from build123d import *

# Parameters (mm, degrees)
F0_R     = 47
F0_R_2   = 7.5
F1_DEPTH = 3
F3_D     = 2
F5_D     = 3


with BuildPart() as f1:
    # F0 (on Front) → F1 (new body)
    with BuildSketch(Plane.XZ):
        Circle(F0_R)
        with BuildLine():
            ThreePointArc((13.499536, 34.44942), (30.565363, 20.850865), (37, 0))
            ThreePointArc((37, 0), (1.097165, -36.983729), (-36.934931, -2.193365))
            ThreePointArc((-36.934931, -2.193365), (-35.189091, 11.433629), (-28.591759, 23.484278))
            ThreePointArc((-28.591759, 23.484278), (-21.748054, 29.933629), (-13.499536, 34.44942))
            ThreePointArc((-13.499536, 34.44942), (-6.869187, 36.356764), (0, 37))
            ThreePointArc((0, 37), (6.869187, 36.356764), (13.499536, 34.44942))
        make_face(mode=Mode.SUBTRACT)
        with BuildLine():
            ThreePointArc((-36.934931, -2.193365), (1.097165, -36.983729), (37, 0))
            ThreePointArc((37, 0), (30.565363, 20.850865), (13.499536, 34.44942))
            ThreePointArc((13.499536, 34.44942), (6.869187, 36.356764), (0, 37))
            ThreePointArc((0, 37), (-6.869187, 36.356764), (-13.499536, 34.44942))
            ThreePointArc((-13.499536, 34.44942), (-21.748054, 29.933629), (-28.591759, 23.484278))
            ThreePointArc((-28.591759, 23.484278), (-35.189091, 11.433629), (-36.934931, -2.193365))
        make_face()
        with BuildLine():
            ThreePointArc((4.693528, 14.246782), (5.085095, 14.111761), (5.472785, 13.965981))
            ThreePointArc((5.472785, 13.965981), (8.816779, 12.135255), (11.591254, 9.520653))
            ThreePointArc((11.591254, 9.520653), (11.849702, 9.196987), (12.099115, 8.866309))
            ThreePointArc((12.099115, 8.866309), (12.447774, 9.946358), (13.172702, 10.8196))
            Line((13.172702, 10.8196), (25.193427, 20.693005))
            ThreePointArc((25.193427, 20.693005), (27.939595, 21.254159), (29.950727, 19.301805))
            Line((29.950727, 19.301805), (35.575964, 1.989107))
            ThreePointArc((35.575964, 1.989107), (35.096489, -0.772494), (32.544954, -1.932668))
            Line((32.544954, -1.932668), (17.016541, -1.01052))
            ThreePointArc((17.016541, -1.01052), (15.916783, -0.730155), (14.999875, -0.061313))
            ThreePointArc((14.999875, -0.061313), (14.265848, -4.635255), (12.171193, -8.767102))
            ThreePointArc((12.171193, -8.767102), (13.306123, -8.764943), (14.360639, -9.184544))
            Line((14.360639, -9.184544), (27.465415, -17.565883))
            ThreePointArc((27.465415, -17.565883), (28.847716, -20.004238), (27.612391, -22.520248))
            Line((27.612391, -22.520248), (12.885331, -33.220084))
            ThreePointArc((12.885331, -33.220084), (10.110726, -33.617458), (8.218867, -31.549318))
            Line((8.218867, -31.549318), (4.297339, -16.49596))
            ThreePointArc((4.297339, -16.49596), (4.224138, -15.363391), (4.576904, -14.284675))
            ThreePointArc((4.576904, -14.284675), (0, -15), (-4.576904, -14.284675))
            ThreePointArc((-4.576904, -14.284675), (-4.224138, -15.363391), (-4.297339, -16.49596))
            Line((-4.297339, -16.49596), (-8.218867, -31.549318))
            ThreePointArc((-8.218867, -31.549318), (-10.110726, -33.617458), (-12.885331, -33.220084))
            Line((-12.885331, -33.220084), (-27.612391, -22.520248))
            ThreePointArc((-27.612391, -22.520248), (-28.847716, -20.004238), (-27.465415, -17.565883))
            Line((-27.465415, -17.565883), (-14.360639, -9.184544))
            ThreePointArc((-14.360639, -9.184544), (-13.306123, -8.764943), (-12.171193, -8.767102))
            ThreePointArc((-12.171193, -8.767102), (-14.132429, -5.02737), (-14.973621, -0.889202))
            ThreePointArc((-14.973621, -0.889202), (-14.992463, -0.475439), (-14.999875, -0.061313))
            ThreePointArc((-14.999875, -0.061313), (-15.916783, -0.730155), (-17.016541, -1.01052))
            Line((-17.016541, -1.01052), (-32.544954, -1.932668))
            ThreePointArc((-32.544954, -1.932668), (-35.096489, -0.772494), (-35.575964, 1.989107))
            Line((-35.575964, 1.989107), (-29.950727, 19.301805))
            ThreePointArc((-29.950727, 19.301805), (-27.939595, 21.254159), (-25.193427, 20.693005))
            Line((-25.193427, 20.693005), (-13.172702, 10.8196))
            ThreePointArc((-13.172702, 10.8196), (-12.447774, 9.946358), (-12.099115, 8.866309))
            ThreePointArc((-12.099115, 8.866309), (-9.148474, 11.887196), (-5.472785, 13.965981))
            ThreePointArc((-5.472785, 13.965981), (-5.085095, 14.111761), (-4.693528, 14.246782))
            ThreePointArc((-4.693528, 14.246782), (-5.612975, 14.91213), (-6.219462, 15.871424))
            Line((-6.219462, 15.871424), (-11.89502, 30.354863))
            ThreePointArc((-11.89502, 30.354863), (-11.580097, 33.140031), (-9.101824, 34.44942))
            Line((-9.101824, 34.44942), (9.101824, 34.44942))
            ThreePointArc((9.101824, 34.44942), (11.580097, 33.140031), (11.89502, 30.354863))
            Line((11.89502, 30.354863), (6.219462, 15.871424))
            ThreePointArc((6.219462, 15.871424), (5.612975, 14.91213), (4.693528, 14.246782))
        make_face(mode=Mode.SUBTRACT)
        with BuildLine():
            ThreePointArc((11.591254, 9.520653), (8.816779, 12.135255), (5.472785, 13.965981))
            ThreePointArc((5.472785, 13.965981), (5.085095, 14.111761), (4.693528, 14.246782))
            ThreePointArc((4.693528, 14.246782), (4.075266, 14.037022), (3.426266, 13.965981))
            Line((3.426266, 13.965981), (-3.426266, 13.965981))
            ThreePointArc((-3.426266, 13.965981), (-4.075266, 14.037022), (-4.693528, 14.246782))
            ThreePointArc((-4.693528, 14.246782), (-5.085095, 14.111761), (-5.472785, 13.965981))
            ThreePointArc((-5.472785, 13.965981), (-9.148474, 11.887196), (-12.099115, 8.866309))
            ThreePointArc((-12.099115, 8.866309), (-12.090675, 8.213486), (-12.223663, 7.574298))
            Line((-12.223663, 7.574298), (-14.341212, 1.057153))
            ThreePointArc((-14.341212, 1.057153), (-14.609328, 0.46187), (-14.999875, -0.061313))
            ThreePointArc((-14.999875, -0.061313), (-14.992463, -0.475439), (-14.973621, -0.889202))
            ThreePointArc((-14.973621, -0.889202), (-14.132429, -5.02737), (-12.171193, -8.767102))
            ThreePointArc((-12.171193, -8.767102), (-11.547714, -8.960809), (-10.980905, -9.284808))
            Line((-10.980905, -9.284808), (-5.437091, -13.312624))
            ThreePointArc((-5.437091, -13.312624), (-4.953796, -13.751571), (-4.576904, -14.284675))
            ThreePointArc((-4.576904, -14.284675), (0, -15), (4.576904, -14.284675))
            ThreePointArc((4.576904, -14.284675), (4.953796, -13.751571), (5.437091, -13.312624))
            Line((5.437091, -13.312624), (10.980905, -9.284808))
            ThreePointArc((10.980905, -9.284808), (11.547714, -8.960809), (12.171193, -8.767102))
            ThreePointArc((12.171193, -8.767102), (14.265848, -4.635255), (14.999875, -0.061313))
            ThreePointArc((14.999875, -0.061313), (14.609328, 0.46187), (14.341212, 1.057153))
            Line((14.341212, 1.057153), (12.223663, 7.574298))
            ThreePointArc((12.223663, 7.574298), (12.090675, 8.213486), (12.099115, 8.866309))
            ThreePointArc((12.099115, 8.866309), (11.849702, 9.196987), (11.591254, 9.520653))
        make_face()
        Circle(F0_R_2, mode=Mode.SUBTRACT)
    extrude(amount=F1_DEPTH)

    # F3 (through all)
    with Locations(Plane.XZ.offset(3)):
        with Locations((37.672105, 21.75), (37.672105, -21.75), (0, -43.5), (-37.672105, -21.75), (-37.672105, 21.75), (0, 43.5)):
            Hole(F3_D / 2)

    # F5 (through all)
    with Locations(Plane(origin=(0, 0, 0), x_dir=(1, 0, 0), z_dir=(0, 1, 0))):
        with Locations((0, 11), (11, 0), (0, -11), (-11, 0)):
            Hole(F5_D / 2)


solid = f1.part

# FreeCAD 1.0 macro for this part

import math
import FreeCAD as App
import Part
import Sketcher
Q = App.Units.Quantity

doc = App.newDocument("Part")
body = doc.addObject("PartDesign::Body", "Body")

# Sketch on XZ plane
sketch1 = body.newObject("Sketcher::SketchObject", "Sketch")
sketch1.AttachmentSupport = (doc.getObject("XZ_Plane"), [""])
sketch1.MapMode = "FlatFace"
sketch1.addGeometry(Part.Circle(App.Vector(0, 0, 0), App.Vector(0, 0, 1), 47), False)
sketch1.addGeometry(Part.ArcOfCircle(Part.Circle(App.Vector(-12.7, -11.7, 0), App.Vector(0, 0, 1), 3), math.radians(79), math.radians(123)), False)
sketch1.addGeometry(Part.ArcOfCircle(Part.Circle(App.Vector(-12.7, -11.7, 0), App.Vector(0, 0, 1), 3), math.radians(54), math.radians(79)), False)
sketch1.addGeometry(Part.LineSegment(App.Vector(-11, -9.3, 0), App.Vector(-5.4, -13.3, 0)), False)
sketch1.addGeometry(Part.ArcOfCircle(Part.Circle(App.Vector(-7.2, -15.7, 0), App.Vector(0, 0, 1), 3), math.radians(29), math.radians(54)), False)
sketch1.addGeometry(Part.ArcOfCircle(Part.Circle(App.Vector(-7.2, -15.7, 0), App.Vector(0, 0, 1), 3), math.radians(-15), math.radians(29)), False)
sketch1.addGeometry(Part.LineSegment(App.Vector(-4.3, -16.5, 0), App.Vector(-8.2, -31.5, 0)), False)
sketch1.addGeometry(Part.ArcOfCircle(Part.Circle(App.Vector(-11.1, -30.8, 0), App.Vector(0, 0, 1), 3), math.radians(-126), math.radians(-15)), False)
sketch1.addGeometry(Part.LineSegment(App.Vector(-12.9, -33.2, 0), App.Vector(-27.6, -22.5, 0)), False)
sketch1.addGeometry(Part.ArcOfCircle(Part.Circle(App.Vector(-25.8, -20.1, 0), App.Vector(0, 0, 1), 3), math.radians(123), math.radians(234)), False)
sketch1.addGeometry(Part.LineSegment(App.Vector(-27.5, -17.6, 0), App.Vector(-14.4, -9.2, 0)), False)
sketch1.addGeometry(Part.ArcOfCircle(Part.Circle(App.Vector(7.2, -15.7, 0), App.Vector(0, 0, 1), 3), math.radians(151), math.radians(195)), False)
sketch1.addGeometry(Part.ArcOfCircle(Part.Circle(App.Vector(7.2, -15.7, 0), App.Vector(0, 0, 1), 3), math.radians(126), math.radians(151)), False)
sketch1.addGeometry(Part.LineSegment(App.Vector(5.4, -13.3, 0), App.Vector(11, -9.3, 0)), False)
sketch1.addGeometry(Part.ArcOfCircle(Part.Circle(App.Vector(12.7, -11.7, 0), App.Vector(0, 0, 1), 3), math.radians(101), math.radians(126)), False)
sketch1.addGeometry(Part.ArcOfCircle(Part.Circle(App.Vector(12.7, -11.7, 0), App.Vector(0, 0, 1), 3), math.radians(57), math.radians(101)), False)
sketch1.addGeometry(Part.LineSegment(App.Vector(14.4, -9.2, 0), App.Vector(27.5, -17.6, 0)), False)
sketch1.addGeometry(Part.ArcOfCircle(Part.Circle(App.Vector(25.8, -20.1, 0), App.Vector(0, 0, 1), 3), math.radians(-54), math.radians(57)), False)
sketch1.addGeometry(Part.LineSegment(App.Vector(27.6, -22.5, 0), App.Vector(12.9, -33.2, 0)), False)
sketch1.addGeometry(Part.ArcOfCircle(Part.Circle(App.Vector(11.1, -30.8, 0), App.Vector(0, 0, 1), 3), math.radians(-165), math.radians(-54)), False)
sketch1.addGeometry(Part.LineSegment(App.Vector(8.2, -31.5, 0), App.Vector(4.3, -16.5, 0)), False)
sketch1.addGeometry(Part.Circle(App.Vector(0, 0, 0), App.Vector(0, 0, 1), 7.5), False)
sketch1.addGeometry(Part.ArcOfCircle(Part.Circle(App.Vector(-15.1, 8.5, 0), App.Vector(0, 0, 1), 3), math.radians(7), math.radians(51)), False)
sketch1.addGeometry(Part.ArcOfCircle(Part.Circle(App.Vector(-15.1, 8.5, 0), App.Vector(0, 0, 1), 3), math.radians(-18), math.radians(7)), False)
sketch1.addGeometry(Part.LineSegment(App.Vector(-12.2, 7.6, 0), App.Vector(-14.3, 1.1, 0)), False)
sketch1.addGeometry(Part.ArcOfCircle(Part.Circle(App.Vector(-17.2, 2, 0), App.Vector(0, 0, 1), 3), math.radians(-43), math.radians(-18)), False)
sketch1.addGeometry(Part.ArcOfCircle(Part.Circle(App.Vector(-17.2, 2, 0), App.Vector(0, 0, 1), 3), math.radians(-87), math.radians(-43)), False)
sketch1.addGeometry(Part.LineSegment(App.Vector(-17, -1, 0), App.Vector(-32.5, -1.9, 0)), False)
sketch1.addGeometry(Part.ArcOfCircle(Part.Circle(App.Vector(-32.7, 1.1, 0), App.Vector(0, 0, 1), 3), math.radians(162), math.radians(273)), False)
sketch1.addGeometry(Part.LineSegment(App.Vector(-35.6, 2, 0), App.Vector(-30, 19.3, 0)), False)
sketch1.addGeometry(Part.ArcOfCircle(Part.Circle(App.Vector(-27.1, 18.4, 0), App.Vector(0, 0, 1), 3), math.radians(51), math.radians(162)), False)
sketch1.addGeometry(Part.LineSegment(App.Vector(-25.2, 20.7, 0), App.Vector(-13.2, 10.8, 0)), False)
sketch1.addGeometry(Part.ArcOfCircle(Part.Circle(App.Vector(17.2, 2, 0), App.Vector(0, 0, 1), 3), math.radians(-137), math.radians(-93)), False)
sketch1.addGeometry(Part.ArcOfCircle(Part.Circle(App.Vector(17.2, 2, 0), App.Vector(0, 0, 1), 3), math.radians(-162), math.radians(-137)), False)
sketch1.addGeometry(Part.LineSegment(App.Vector(14.3, 1.1, 0), App.Vector(12.2, 7.6, 0)), False)
sketch1.addGeometry(Part.ArcOfCircle(Part.Circle(App.Vector(15.1, 8.5, 0), App.Vector(0, 0, 1), 3), math.radians(173), math.radians(198)), False)
sketch1.addGeometry(Part.ArcOfCircle(Part.Circle(App.Vector(15.1, 8.5, 0), App.Vector(0, 0, 1), 3), math.radians(129), math.radians(173)), False)
sketch1.addGeometry(Part.LineSegment(App.Vector(13.2, 10.8, 0), App.Vector(25.2, 20.7, 0)), False)
sketch1.addGeometry(Part.ArcOfCircle(Part.Circle(App.Vector(27.1, 18.4, 0), App.Vector(0, 0, 1), 3), math.radians(18), math.radians(129)), False)
sketch1.addGeometry(Part.LineSegment(App.Vector(30, 19.3, 0), App.Vector(35.6, 2, 0)), False)
sketch1.addGeometry(Part.ArcOfCircle(Part.Circle(App.Vector(32.7, 1.1, 0), App.Vector(0, 0, 1), 3), math.radians(-93), math.radians(18)), False)
sketch1.addGeometry(Part.LineSegment(App.Vector(32.5, -1.9, 0), App.Vector(17, -1, 0)), False)
sketch1.addGeometry(Part.ArcOfCircle(Part.Circle(App.Vector(3.4, 17, 0), App.Vector(0, 0, 1), 3), math.radians(-65), math.radians(-21)), False)
sketch1.addGeometry(Part.ArcOfCircle(Part.Circle(App.Vector(3.4, 17, 0), App.Vector(0, 0, 1), 3), math.radians(-90), math.radians(-65)), False)
sketch1.addGeometry(Part.LineSegment(App.Vector(3.4, 14, 0), App.Vector(-3.4, 14, 0)), False)
sketch1.addGeometry(Part.ArcOfCircle(Part.Circle(App.Vector(-3.4, 17, 0), App.Vector(0, 0, 1), 3), math.radians(-115), math.radians(-90)), False)
sketch1.addGeometry(Part.ArcOfCircle(Part.Circle(App.Vector(-3.4, 17, 0), App.Vector(0, 0, 1), 3), math.radians(-159), math.radians(-115)), False)
sketch1.addGeometry(Part.LineSegment(App.Vector(-6.2, 15.9, 0), App.Vector(-11.9, 30.4, 0)), False)
sketch1.addGeometry(Part.ArcOfCircle(Part.Circle(App.Vector(-9.1, 31.4, 0), App.Vector(0, 0, 1), 3), math.radians(90), math.radians(201)), False)
sketch1.addGeometry(Part.LineSegment(App.Vector(-9.1, 34.4, 0), App.Vector(9.1, 34.4, 0)), False)
sketch1.addGeometry(Part.ArcOfCircle(Part.Circle(App.Vector(9.1, 31.4, 0), App.Vector(0, 0, 1), 3), math.radians(-21), math.radians(90)), False)
sketch1.addGeometry(Part.LineSegment(App.Vector(11.9, 30.4, 0), App.Vector(6.2, 15.9, 0)), False)
sketch1.addConstraint(Sketcher.Constraint("Tangent", 1, 1, 2, 2))
sketch1.addConstraint(Sketcher.Constraint("Tangent", 2, 1, 3, 1))
sketch1.addConstraint(Sketcher.Constraint("Tangent", 3, 2, 4, 2))
sketch1.addConstraint(Sketcher.Constraint("Tangent", 4, 1, 5, 2))
sketch1.addConstraint(Sketcher.Constraint("Tangent", 5, 1, 6, 1))
sketch1.addConstraint(Sketcher.Constraint("Tangent", 6, 2, 7, 2))
sketch1.addConstraint(Sketcher.Constraint("Tangent", 7, 1, 8, 1))
sketch1.addConstraint(Sketcher.Constraint("Tangent", 8, 2, 9, 2))
sketch1.addConstraint(Sketcher.Constraint("Tangent", 9, 1, 10, 1))
sketch1.addConstraint(Sketcher.Constraint("Tangent", 10, 2, 1, 2))
sketch1.addConstraint(Sketcher.Constraint("Tangent", 11, 1, 12, 2))
sketch1.addConstraint(Sketcher.Constraint("Tangent", 12, 1, 13, 1))
sketch1.addConstraint(Sketcher.Constraint("Tangent", 13, 2, 14, 2))
sketch1.addConstraint(Sketcher.Constraint("Tangent", 14, 1, 15, 2))
sketch1.addConstraint(Sketcher.Constraint("Tangent", 15, 1, 16, 1))
sketch1.addConstraint(Sketcher.Constraint("Tangent", 16, 2, 17, 2))
sketch1.addConstraint(Sketcher.Constraint("Tangent", 17, 1, 18, 1))
sketch1.addConstraint(Sketcher.Constraint("Tangent", 18, 2, 19, 2))
sketch1.addConstraint(Sketcher.Constraint("Tangent", 19, 1, 20, 1))
sketch1.addConstraint(Sketcher.Constraint("Tangent", 20, 2, 11, 2))
sketch1.addConstraint(Sketcher.Constraint("Coincident", 22, 1, 23, 2))
sketch1.addConstraint(Sketcher.Constraint("Tangent", 23, 1, 24, 1))
sketch1.addConstraint(Sketcher.Constraint("Tangent", 24, 2, 25, 2))
sketch1.addConstraint(Sketcher.Constraint("Coincident", 25, 1, 26, 2))
sketch1.addConstraint(Sketcher.Constraint("Tangent", 26, 1, 27, 1))
sketch1.addConstraint(Sketcher.Constraint("Tangent", 27, 2, 28, 2))
sketch1.addConstraint(Sketcher.Constraint("Tangent", 28, 1, 29, 1))
sketch1.addConstraint(Sketcher.Constraint("Tangent", 29, 2, 30, 2))
sketch1.addConstraint(Sketcher.Constraint("Tangent", 30, 1, 31, 1))
sketch1.addConstraint(Sketcher.Constraint("Tangent", 31, 2, 22, 2))
sketch1.addConstraint(Sketcher.Constraint("Coincident", 32, 1, 33, 2))
sketch1.addConstraint(Sketcher.Constraint("Tangent", 33, 1, 34, 1))
sketch1.addConstraint(Sketcher.Constraint("Tangent", 34, 2, 35, 2))
sketch1.addConstraint(Sketcher.Constraint("Coincident", 35, 1, 36, 2))
sketch1.addConstraint(Sketcher.Constraint("Tangent", 36, 1, 37, 1))
sketch1.addConstraint(Sketcher.Constraint("Tangent", 37, 2, 38, 2))
sketch1.addConstraint(Sketcher.Constraint("Tangent", 38, 1, 39, 1))
sketch1.addConstraint(Sketcher.Constraint("Tangent", 39, 2, 40, 2))
sketch1.addConstraint(Sketcher.Constraint("Tangent", 40, 1, 41, 1))
sketch1.addConstraint(Sketcher.Constraint("Tangent", 41, 2, 32, 2))
sketch1.addConstraint(Sketcher.Constraint("Coincident", 42, 1, 43, 2))
sketch1.addConstraint(Sketcher.Constraint("Tangent", 43, 1, 44, 1))
sketch1.addConstraint(Sketcher.Constraint("Tangent", 44, 2, 45, 2))
sketch1.addConstraint(Sketcher.Constraint("Coincident", 45, 1, 46, 2))
sketch1.addConstraint(Sketcher.Constraint("Tangent", 46, 1, 47, 1))
sketch1.addConstraint(Sketcher.Constraint("Tangent", 47, 2, 48, 2))
sketch1.addConstraint(Sketcher.Constraint("Tangent", 48, 1, 49, 1))
sketch1.addConstraint(Sketcher.Constraint("Tangent", 49, 2, 50, 2))
sketch1.addConstraint(Sketcher.Constraint("Tangent", 50, 1, 51, 1))
sketch1.addConstraint(Sketcher.Constraint("Tangent", 51, 2, 42, 2))
sketch1.addConstraint(Sketcher.Constraint("Horizontal", 44))
sketch1.addConstraint(Sketcher.Constraint("Horizontal", 49))
sketch1.addConstraint(Sketcher.Constraint("Coincident", 0, 3, -1, 1))
sketch1.addConstraint(Sketcher.Constraint("Coincident", 21, 3, -1, 1))
sketch1.addConstraint(Sketcher.Constraint("Equal", 2, 7))
sketch1.addConstraint(Sketcher.Constraint("Equal", 7, 9))
sketch1.addConstraint(Sketcher.Constraint("Equal", 5, 11))
sketch1.addConstraint(Sketcher.Constraint("Equal", 4, 12))
sketch1.addConstraint(Sketcher.Constraint("Equal", 9, 14))
sketch1.addConstraint(Sketcher.Constraint("Equal", 1, 15))
sketch1.addConstraint(Sketcher.Constraint("Equal", 14, 17))
sketch1.addConstraint(Sketcher.Constraint("Equal", 17, 19))
sketch1.addConstraint(Sketcher.Constraint("Equal", 17, 22))
sketch1.addConstraint(Sketcher.Constraint("Equal", 23, 25))
sketch1.addConstraint(Sketcher.Constraint("Equal", 22, 28))
sketch1.addConstraint(Sketcher.Constraint("Equal", 28, 30))
sketch1.addConstraint(Sketcher.Constraint("Equal", 26, 32))
sketch1.addConstraint(Sketcher.Constraint("Equal", 25, 33))
sketch1.addConstraint(Sketcher.Constraint("Equal", 33, 35))
sketch1.addConstraint(Sketcher.Constraint("Equal", 30, 36))
sketch1.addConstraint(Sketcher.Constraint("Equal", 36, 38))
sketch1.addConstraint(Sketcher.Constraint("Equal", 38, 40))
sketch1.addConstraint(Sketcher.Constraint("Equal", 15, 42))
sketch1.addConstraint(Sketcher.Constraint("Equal", 43, 45))
sketch1.addConstraint(Sketcher.Constraint("Equal", 42, 46))
sketch1.addConstraint(Sketcher.Constraint("Equal", 40, 48))
sketch1.addConstraint(Sketcher.Constraint("Equal", 48, 50))
sketch1.addConstraint(Sketcher.Constraint("Symmetric", 5, 3, 11, 3, -2))
sketch1.addConstraint(Sketcher.Constraint("Symmetric", 1, 3, 14, 3, -2))
sketch1.addConstraint(Sketcher.Constraint("Symmetric", 9, 3, 17, 3, -2))
sketch1.addConstraint(Sketcher.Constraint("Symmetric", 7, 3, 19, 3, -2))
sketch1.addConstraint(Sketcher.Constraint("Symmetric", 26, 3, 32, 3, -2))
sketch1.addConstraint(Sketcher.Constraint("Symmetric", 23, 3, 35, 3, -2))
sketch1.addConstraint(Sketcher.Constraint("Symmetric", 30, 3, 38, 3, -2))
sketch1.addConstraint(Sketcher.Constraint("Symmetric", 28, 3, 40, 3, -2))
sketch1.addConstraint(Sketcher.Constraint("Symmetric", 42, 3, 46, 3, -2))
sketch1.addConstraint(Sketcher.Constraint("Symmetric", 1, 1, 14, 1, -2))
sketch1.addConstraint(Sketcher.Constraint("Parallel", 3, 8))
sketch1.addConstraint(Sketcher.Constraint("Parallel", 24, 29))
sketch1.addConstraint(Sketcher.Constraint("Parallel", 34, 39))
sketch1.addConstraint(Sketcher.Constraint("Horizontal", 22, 3, 36, 3))
sketch1.addConstraint(Sketcher.Constraint("Horizontal", 4, 1, 11, 1))
sketch1.addConstraint(Sketcher.Constraint("Horizontal", 25, 1, 32, 1))
sketch1.addConstraint(Sketcher.Constraint("Horizontal", 22, 1, 35, 1))
sketch1.addConstraint(Sketcher.Constraint("Horizontal", 42, 1, 45, 1))
sketch1.addConstraint(Sketcher.Constraint("Horizontal", 47, 2, 50, 1))
sketch1.addConstraint(Sketcher.Constraint("Vertical", 42, 3, 43, 3))
sketch1.addConstraint(Sketcher.Constraint("Equal", 6, 10))
sketch1.addConstraint(Sketcher.Constraint("Equal", 13, 24))
sketch1.addConstraint(Sketcher.Constraint("Equal", 20, 27))
sketch1.addConstraint(Sketcher.Constraint("Equal", 18, 29))
sketch1.addConstraint(Sketcher.Constraint("Equal", 27, 31))
sketch1.addConstraint(Sketcher.Constraint("Equal", 41, 47))
sketch1.addConstraint(Sketcher.Constraint("Diameter", 0, Q("94 mm")))
sketch1.addConstraint(Sketcher.Constraint("Diameter", 21, Q("15 mm")))
sketch1.addConstraint(Sketcher.Constraint("Radius", 2, Q("3 mm")))
sketch1.addConstraint(Sketcher.Constraint("Angle", 3, Q("-35.999996 deg")))
sketch1.addConstraint(Sketcher.Constraint("Angle", 24, Q("-108.000002 deg")))
sketch1.addConstraint(Sketcher.Constraint("Radius", 26, Q("2.999991 mm")))
sketch1.addConstraint(Sketcher.Constraint("Radius", 4, Q("3.000026 mm")))
sketch1.addConstraint(Sketcher.Constraint("Radius", 5, Q("2.999996 mm")))
sketch1.addConstraint(Sketcher.Constraint("Radius", 23, Q("2.999978 mm")))
sketch1.addConstraint(Sketcher.Constraint("Radius", 43, Q("2.999974 mm")))
sketch1.addConstraint(Sketcher.Constraint("DistanceX", 49, 1, 49, 2, Q("18.203648 mm")))
sketch1.addConstraint(Sketcher.Constraint("DistanceY", 1, 1, -1, 1, Q("8.767102 mm")))
sketch1.addConstraint(Sketcher.Constraint("DistanceY", -1, 1, 23, 1, Q("7.574298 mm")))
sketch1.addConstraint(Sketcher.Constraint("DistanceX", 31, 2, -1, 1, Q("13.172702 mm")))
sketch1.addConstraint(Sketcher.Constraint("DistanceY", -1, 1, 31, 2, Q("10.8196 mm")))
sketch1.addConstraint(Sketcher.Constraint("Distance", 3, Q("6.852531 mm")))
sketch1.addConstraint(Sketcher.Constraint("Distance", 6, Q("15.55577 mm")))
sketch1.addConstraint(Sketcher.Constraint("Distance", 29, Q("18.203648 mm")))
sketch1.addConstraint(Sketcher.Constraint("DistanceX", 44, 2, 44, 1, Q("6.852532 mm")))
sketch1.addConstraint(Sketcher.Constraint("DistanceX", 1, 3, -1, 1, Q("12.744262 mm")))
sketch1.addConstraint(Sketcher.Constraint("DistanceY", 2, 3, -1, 1, Q("11.711859 mm")))
sketch1.addConstraint(Sketcher.Constraint("DistanceX", 22, 3, -1, 1, Q("15.076832 mm")))
sketch1.addConstraint(Sketcher.Constraint("DistanceY", -1, 1, 48, 3, Q("31.449421 mm")))
sketch1.addConstraint(Sketcher.Constraint("DistanceY", -1, 1, 22, 1, Q("8.866309 mm")))
sketch1.addConstraint(Sketcher.Constraint("DistanceX", 45, 1, -1, 1, Q("4.693528 mm")))
sketch1.addConstraint(Sketcher.Constraint("DistanceX", 4, 1, -1, 1, Q("4.576904 mm")))
sketch1.addConstraint(Sketcher.Constraint("DistanceX", 25, 1, -1, 1, Q("14.999875 mm")))
pad1 = body.newObject("PartDesign::Pad", "Pad")
pad1.Profile = sketch1
pad1.Length = 3

# Sketch on XZ plane
sketch2 = body.newObject("Sketcher::SketchObject", "Sketch001")
sketch2.AttachmentSupport = (doc.getObject("XZ_Plane"), [""])
sketch2.MapMode = "FlatFace"
sketch2.AttachmentOffset = App.Placement(App.Vector(0, 0, 3), App.Rotation())
sketch2.addGeometry(Part.Circle(App.Vector(37.7, 21.8, 0), App.Vector(0, 0, 1), 1), False)
sketch2.addGeometry(Part.Circle(App.Vector(37.7, -21.8, 0), App.Vector(0, 0, 1), 1), False)
sketch2.addGeometry(Part.Circle(App.Vector(0, -43.5, 0), App.Vector(0, 0, 1), 1), False)
sketch2.addGeometry(Part.Circle(App.Vector(-37.7, -21.8, 0), App.Vector(0, 0, 1), 1), False)
sketch2.addGeometry(Part.Circle(App.Vector(-37.7, 21.8, 0), App.Vector(0, 0, 1), 1), False)
sketch2.addGeometry(Part.Circle(App.Vector(0, 43.5, 0), App.Vector(0, 0, 1), 1), False)
sketch2.addConstraint(Sketcher.Constraint("Equal", 0, 1))
sketch2.addConstraint(Sketcher.Constraint("Equal", 1, 2))
sketch2.addConstraint(Sketcher.Constraint("Equal", 2, 3))
sketch2.addConstraint(Sketcher.Constraint("Equal", 3, 4))
sketch2.addConstraint(Sketcher.Constraint("Equal", 4, 5))
sketch2.addConstraint(Sketcher.Constraint("Symmetric", 0, 3, 3, 3, -1, 1))
sketch2.addConstraint(Sketcher.Constraint("Symmetric", 1, 3, 4, 3, -1, 1))
sketch2.addConstraint(Sketcher.Constraint("Symmetric", 2, 3, 5, 3, -1, 1))
sketch2.addConstraint(Sketcher.Constraint("Symmetric", 1, 3, 3, 3, -2))
sketch2.addConstraint(Sketcher.Constraint("PointOnObject", 2, 3, -2))
sketch2.addConstraint(Sketcher.Constraint("Diameter", 0, Q("2 mm")))
sketch2.addConstraint(Sketcher.Constraint("DistanceY", 2, 3, 5, 3, Q("87 mm")))
sketch2.addConstraint(Sketcher.Constraint("DistanceY", 1, 3, 0, 3, Q("43.5 mm")))
sketch2.addConstraint(Sketcher.Constraint("DistanceX", 3, 3, 1, 3, Q("75.34421 mm")))
doc.recompute()
hole = body.newObject("PartDesign::Hole", "Hole")
hole.Profile = sketch2
hole.ThreadType = "None"
hole.Diameter = 2
hole.DepthType = "ThroughAll"

# Sketch on XZ plane
sketch3 = body.newObject("Sketcher::SketchObject", "Sketch002")
sketch3.AttachmentSupport = (doc.getObject("XZ_Plane"), [""])
sketch3.MapMode = "FlatFace"
sketch3.addGeometry(Part.Circle(App.Vector(0, -11, 0), App.Vector(0, 0, 1), 1.5), False)
sketch3.addGeometry(Part.Circle(App.Vector(11, 0, 0), App.Vector(0, 0, 1), 1.5), False)
sketch3.addGeometry(Part.Circle(App.Vector(0, 11, 0), App.Vector(0, 0, 1), 1.5), False)
sketch3.addGeometry(Part.Circle(App.Vector(-11, 0, 0), App.Vector(0, 0, 1), 1.5), False)
sketch3.addConstraint(Sketcher.Constraint("Equal", 0, 1))
sketch3.addConstraint(Sketcher.Constraint("Equal", 1, 2))
sketch3.addConstraint(Sketcher.Constraint("Equal", 2, 3))
sketch3.addConstraint(Sketcher.Constraint("Symmetric", 0, 3, 2, 3, -1, 1))
sketch3.addConstraint(Sketcher.Constraint("Symmetric", 1, 3, 3, 3, -1, 1))
sketch3.addConstraint(Sketcher.Constraint("PointOnObject", 0, 3, -2))
sketch3.addConstraint(Sketcher.Constraint("PointOnObject", 1, 3, -1))
sketch3.addConstraint(Sketcher.Constraint("Diameter", 0, Q("3 mm")))
sketch3.addConstraint(Sketcher.Constraint("DistanceY", 0, 3, -1, 1, Q("11 mm")))
sketch3.addConstraint(Sketcher.Constraint("DistanceX", -1, 1, 1, 3, Q("11 mm")))
doc.recompute()
hole2 = body.newObject("PartDesign::Hole", "Hole001")
hole2.Profile = sketch3
hole2.ThreadType = "None"
hole2.Diameter = 3
hole2.DepthType = "ThroughAll"
hole2.Reversed = True

doc.recompute()
